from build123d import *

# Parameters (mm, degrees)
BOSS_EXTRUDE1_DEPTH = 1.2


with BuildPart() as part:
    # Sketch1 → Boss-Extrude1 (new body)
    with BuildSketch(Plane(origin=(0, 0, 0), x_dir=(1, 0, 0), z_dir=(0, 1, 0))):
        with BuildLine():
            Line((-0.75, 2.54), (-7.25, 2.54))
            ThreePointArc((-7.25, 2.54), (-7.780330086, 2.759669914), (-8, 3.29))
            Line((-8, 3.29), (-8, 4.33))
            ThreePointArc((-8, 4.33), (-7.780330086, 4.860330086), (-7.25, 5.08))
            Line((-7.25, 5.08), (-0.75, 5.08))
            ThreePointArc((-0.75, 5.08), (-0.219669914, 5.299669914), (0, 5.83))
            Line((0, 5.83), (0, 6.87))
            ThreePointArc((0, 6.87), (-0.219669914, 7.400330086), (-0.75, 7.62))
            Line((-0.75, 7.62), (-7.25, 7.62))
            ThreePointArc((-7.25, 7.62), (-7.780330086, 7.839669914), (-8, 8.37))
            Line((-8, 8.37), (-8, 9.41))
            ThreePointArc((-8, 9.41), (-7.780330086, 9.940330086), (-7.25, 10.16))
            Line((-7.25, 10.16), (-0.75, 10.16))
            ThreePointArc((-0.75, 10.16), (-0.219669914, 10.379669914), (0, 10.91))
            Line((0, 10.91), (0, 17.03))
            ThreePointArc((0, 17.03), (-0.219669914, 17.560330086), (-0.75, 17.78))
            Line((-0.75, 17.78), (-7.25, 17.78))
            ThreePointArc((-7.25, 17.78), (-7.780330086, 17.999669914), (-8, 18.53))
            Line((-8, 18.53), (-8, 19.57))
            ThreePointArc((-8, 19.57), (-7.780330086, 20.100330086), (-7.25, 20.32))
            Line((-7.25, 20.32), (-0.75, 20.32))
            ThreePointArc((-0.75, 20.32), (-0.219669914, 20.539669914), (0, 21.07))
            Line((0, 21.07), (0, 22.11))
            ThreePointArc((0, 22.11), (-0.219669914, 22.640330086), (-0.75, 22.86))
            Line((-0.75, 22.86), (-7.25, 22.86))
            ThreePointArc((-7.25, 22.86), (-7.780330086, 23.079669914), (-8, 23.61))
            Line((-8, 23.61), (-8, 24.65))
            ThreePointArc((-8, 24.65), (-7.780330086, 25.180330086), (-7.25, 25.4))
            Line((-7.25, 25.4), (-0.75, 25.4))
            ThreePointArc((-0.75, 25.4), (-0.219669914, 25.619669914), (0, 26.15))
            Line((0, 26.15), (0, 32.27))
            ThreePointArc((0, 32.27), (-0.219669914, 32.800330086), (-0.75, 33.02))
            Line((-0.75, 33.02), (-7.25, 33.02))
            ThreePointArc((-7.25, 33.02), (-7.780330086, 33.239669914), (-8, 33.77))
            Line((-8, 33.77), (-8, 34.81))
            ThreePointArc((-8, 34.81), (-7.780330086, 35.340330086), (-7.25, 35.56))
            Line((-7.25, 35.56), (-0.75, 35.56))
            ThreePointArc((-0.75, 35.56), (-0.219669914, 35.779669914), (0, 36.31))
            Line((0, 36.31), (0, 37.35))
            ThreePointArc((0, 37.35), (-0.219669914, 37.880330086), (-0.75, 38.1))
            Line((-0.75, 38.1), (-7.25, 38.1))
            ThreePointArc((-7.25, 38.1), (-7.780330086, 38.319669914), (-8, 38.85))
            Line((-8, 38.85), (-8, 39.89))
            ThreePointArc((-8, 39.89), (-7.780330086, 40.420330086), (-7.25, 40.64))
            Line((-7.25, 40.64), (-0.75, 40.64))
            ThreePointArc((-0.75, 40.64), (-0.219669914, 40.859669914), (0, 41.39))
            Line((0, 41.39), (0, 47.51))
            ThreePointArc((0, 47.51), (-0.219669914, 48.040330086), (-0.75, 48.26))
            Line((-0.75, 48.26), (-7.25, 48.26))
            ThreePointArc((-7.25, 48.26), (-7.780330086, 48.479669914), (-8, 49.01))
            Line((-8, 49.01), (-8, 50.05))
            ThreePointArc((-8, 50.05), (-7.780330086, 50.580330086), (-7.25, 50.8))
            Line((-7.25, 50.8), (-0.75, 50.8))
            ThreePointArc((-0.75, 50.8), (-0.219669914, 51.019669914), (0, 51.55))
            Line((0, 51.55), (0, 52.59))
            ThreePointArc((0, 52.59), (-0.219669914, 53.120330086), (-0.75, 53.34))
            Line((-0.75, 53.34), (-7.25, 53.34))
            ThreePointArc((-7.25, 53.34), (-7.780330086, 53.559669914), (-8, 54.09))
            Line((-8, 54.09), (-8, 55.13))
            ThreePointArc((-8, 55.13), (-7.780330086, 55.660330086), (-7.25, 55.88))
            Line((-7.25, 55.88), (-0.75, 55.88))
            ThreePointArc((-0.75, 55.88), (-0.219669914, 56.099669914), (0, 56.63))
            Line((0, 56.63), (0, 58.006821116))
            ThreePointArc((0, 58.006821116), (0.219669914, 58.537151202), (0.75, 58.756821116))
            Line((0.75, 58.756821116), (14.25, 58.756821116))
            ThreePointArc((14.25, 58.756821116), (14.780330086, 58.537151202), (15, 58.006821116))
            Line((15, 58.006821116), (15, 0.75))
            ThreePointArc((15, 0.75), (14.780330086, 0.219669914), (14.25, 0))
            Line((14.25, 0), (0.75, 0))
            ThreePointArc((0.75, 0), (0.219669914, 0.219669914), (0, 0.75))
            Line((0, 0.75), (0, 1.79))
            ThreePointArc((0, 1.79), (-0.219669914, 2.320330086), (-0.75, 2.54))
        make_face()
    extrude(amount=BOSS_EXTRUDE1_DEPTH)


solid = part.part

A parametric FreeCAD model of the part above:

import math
import FreeCAD as App
import Part
import Sketcher
Q = App.Units.Quantity

doc = App.newDocument("Part")
body = doc.addObject("PartDesign::Body", "Body")

sketch1 = body.newObject("Sketcher::SketchObject", "Sketch")
sketch1.AttachmentSupport = (doc.getObject("XZ_Plane"), [""])
sketch1.MapMode = "FlatFace"
sketch1.addGeometry([
    Part.LineSegment(App.Vector(-7.2, -2.5, 0), App.Vector(-0.8, -2.5, 0)),
    Part.ArcOfCircle(Part.Circle(App.Vector(-0.8, -1.8, 0), App.Vector(0, 0, 1), 0.8), math.radians(-90), math.radians(0)),
    Part.LineSegment(App.Vector(0, -1.8, 0), App.Vector(0, -0.8, 0)),
    Part.ArcOfCircle(Part.Circle(App.Vector(0.8, -0.8, 0), App.Vector(0, 0, 1), 0.8), math.radians(90), math.radians(180)),
    Part.LineSegment(App.Vector(0.8, 0, 0), App.Vector(14.2, 0, 0)),
    Part.ArcOfCircle(Part.Circle(App.Vector(14.2, -0.8, 0), App.Vector(0, 0, 1), 0.8), math.radians(0), math.radians(90)),
    Part.LineSegment(App.Vector(15, -0.8, 0), App.Vector(15, -58, 0)),
    Part.ArcOfCircle(Part.Circle(App.Vector(14.2, -58, 0), App.Vector(0, 0, 1), 0.8), math.radians(-90), math.radians(0)),
    Part.LineSegment(App.Vector(14.2, -58.8, 0), App.Vector(0.8, -58.8, 0)),
    Part.ArcOfCircle(Part.Circle(App.Vector(0.8, -58, 0), App.Vector(0, 0, 1), 0.8), math.radians(180), math.radians(270)),
    Part.LineSegment(App.Vector(0, -58, 0), App.Vector(0, -56.6, 0)),
    Part.ArcOfCircle(Part.Circle(App.Vector(-0.8, -56.6, 0), App.Vector(0, 0, 1), 0.8), math.radians(0), math.radians(90)),
    Part.LineSegment(App.Vector(-0.8, -55.9, 0), App.Vector(-7.2, -55.9, 0)),
    Part.ArcOfCircle(Part.Circle(App.Vector(-7.2, -55.1, 0), App.Vector(0, 0, 1), 0.8), math.radians(180), math.radians(270)),
    Part.LineSegment(App.Vector(-8, -55.1, 0), App.Vector(-8, -54.1, 0)),
    Part.ArcOfCircle(Part.Circle(App.Vector(-7.2, -54.1, 0), App.Vector(0, 0, 1), 0.8), math.radians(90), math.radians(180)),
    Part.LineSegment(App.Vector(-7.2, -53.3, 0), App.Vector(-0.8, -53.3, 0)),
    Part.ArcOfCircle(Part.Circle(App.Vector(-0.8, -52.6, 0), App.Vector(0, 0, 1), 0.8), math.radians(-90), math.radians(0)),
    Part.LineSegment(App.Vector(0, -52.6, 0), App.Vector(0, -51.5, 0)),
    Part.ArcOfCircle(Part.Circle(App.Vector(-0.8, -51.5, 0), App.Vector(0, 0, 1), 0.8), math.radians(0), math.radians(90)),
    Part.LineSegment(App.Vector(-0.8, -50.8, 0), App.Vector(-7.2, -50.8, 0)),
    Part.ArcOfCircle(Part.Circle(App.Vector(-7.2, -50, 0), App.Vector(0, 0, 1), 0.8), math.radians(180), math.radians(270)),
    Part.LineSegment(App.Vector(-8, -50, 0), App.Vector(-8, -49, 0)),
    Part.ArcOfCircle(Part.Circle(App.Vector(-7.2, -49, 0), App.Vector(0, 0, 1), 0.8), math.radians(90), math.radians(180)),
    Part.LineSegment(App.Vector(-7.2, -48.3, 0), App.Vector(-0.8, -48.3, 0)),
    Part.ArcOfCircle(Part.Circle(App.Vector(-0.8, -47.5, 0), App.Vector(0, 0, 1), 0.8), math.radians(-90), math.radians(0)),
    Part.LineSegment(App.Vector(0, -47.5, 0), App.Vector(0, -41.4, 0)),
    Part.ArcOfCircle(Part.Circle(App.Vector(-0.8, -41.4, 0), App.Vector(0, 0, 1), 0.8), math.radians(0), math.radians(90)),
    Part.LineSegment(App.Vector(-0.8, -40.6, 0), App.Vector(-7.2, -40.6, 0)),
    Part.ArcOfCircle(Part.Circle(App.Vector(-7.2, -39.9, 0), App.Vector(0, 0, 1), 0.8), math.radians(180), math.radians(270)),
    Part.LineSegment(App.Vector(-8, -39.9, 0), App.Vector(-8, -38.9, 0)),
    Part.ArcOfCircle(Part.Circle(App.Vector(-7.2, -38.9, 0), App.Vector(0, 0, 1), 0.8), math.radians(90), math.radians(180)),
    Part.LineSegment(App.Vector(-7.2, -38.1, 0), App.Vector(-0.8, -38.1, 0)),
    Part.ArcOfCircle(Part.Circle(App.Vector(-0.8, -37.4, 0), App.Vector(0, 0, 1), 0.8), math.radians(-90), math.radians(0)),
    Part.LineSegment(App.Vector(0, -37.4, 0), App.Vector(0, -36.3, 0)),
    Part.ArcOfCircle(Part.Circle(App.Vector(-0.8, -36.3, 0), App.Vector(0, 0, 1), 0.8), math.radians(0), math.radians(90)),
    Part.LineSegment(App.Vector(-0.8, -35.6, 0), App.Vector(-7.2, -35.6, 0)),
    Part.ArcOfCircle(Part.Circle(App.Vector(-7.2, -34.8, 0), App.Vector(0, 0, 1), 0.8), math.radians(180), math.radians(270)),
    Part.LineSegment(App.Vector(-8, -34.8, 0), App.Vector(-8, -33.8, 0)),
    Part.ArcOfCircle(Part.Circle(App.Vector(-7.2, -33.8, 0), App.Vector(0, 0, 1), 0.8), math.radians(90), math.radians(180)),
    Part.LineSegment(App.Vector(-7.2, -33, 0), App.Vector(-0.8, -33, 0)),
    Part.ArcOfCircle(Part.Circle(App.Vector(-0.8, -32.3, 0), App.Vector(0, 0, 1), 0.8), math.radians(-90), math.radians(0)),
    Part.LineSegment(App.Vector(0, -32.3, 0), App.Vector(0, -26.1, 0)),
    Part.ArcOfCircle(Part.Circle(App.Vector(-0.8, -26.1, 0), App.Vector(0, 0, 1), 0.8), math.radians(0), math.radians(90)),
    Part.LineSegment(App.Vector(-0.8, -25.4, 0), App.Vector(-7.2, -25.4, 0)),
    Part.ArcOfCircle(Part.Circle(App.Vector(-7.2, -24.6, 0), App.Vector(0, 0, 1), 0.8), math.radians(180), math.radians(270)),
    Part.LineSegment(App.Vector(-8, -24.6, 0), App.Vector(-8, -23.6, 0)),
    Part.ArcOfCircle(Part.Circle(App.Vector(-7.2, -23.6, 0), App.Vector(0, 0, 1), 0.8), math.radians(90), math.radians(180)),
    Part.LineSegment(App.Vector(-7.2, -22.9, 0), App.Vector(-0.8, -22.9, 0)),
    Part.ArcOfCircle(Part.Circle(App.Vector(-0.8, -22.1, 0), App.Vector(0, 0, 1), 0.8), math.radians(-90), math.radians(0)),
    Part.LineSegment(App.Vector(0, -22.1, 0), App.Vector(0, -21.1, 0)),
    Part.ArcOfCircle(Part.Circle(App.Vector(-0.8, -21.1, 0), App.Vector(0, 0, 1), 0.8), math.radians(0), math.radians(90)),
    Part.LineSegment(App.Vector(-0.8, -20.3, 0), App.Vector(-7.2, -20.3, 0)),
    Part.ArcOfCircle(Part.Circle(App.Vector(-7.2, -19.6, 0), App.Vector(0, 0, 1), 0.8), math.radians(180), math.radians(270)),
    Part.LineSegment(App.Vector(-8, -19.6, 0), App.Vector(-8, -18.5, 0)),
    Part.ArcOfCircle(Part.Circle(App.Vector(-7.2, -18.5, 0), App.Vector(0, 0, 1), 0.8), math.radians(90), math.radians(180)),
    Part.LineSegment(App.Vector(-7.2, -17.8, 0), App.Vector(-0.8, -17.8, 0)),
    Part.ArcOfCircle(Part.Circle(App.Vector(-0.8, -17, 0), App.Vector(0, 0, 1), 0.8), math.radians(-90), math.radians(0)),
    Part.LineSegment(App.Vector(0, -17, 0), App.Vector(0, -10.9, 0)),
    Part.ArcOfCircle(Part.Circle(App.Vector(-0.8, -10.9, 0), App.Vector(0, 0, 1), 0.8), math.radians(0), math.radians(90)),
    Part.LineSegment(App.Vector(-0.8, -10.2, 0), App.Vector(-7.2, -10.2, 0)),
    Part.ArcOfCircle(Part.Circle(App.Vector(-7.2, -9.4, 0), App.Vector(0, 0, 1), 0.8), math.radians(180), math.radians(270)),
    Part.LineSegment(App.Vector(-8, -9.4, 0), App.Vector(-8, -8.4, 0)),
    Part.ArcOfCircle(Part.Circle(App.Vector(-7.2, -8.4, 0), App.Vector(0, 0, 1), 0.8), math.radians(90), math.radians(180)),
    Part.LineSegment(App.Vector(-7.2, -7.6, 0), App.Vector(-0.8, -7.6, 0)),
    Part.ArcOfCircle(Part.Circle(App.Vector(-0.8, -6.9, 0), App.Vector(0, 0, 1), 0.8), math.radians(-90), math.radians(0)),
    Part.LineSegment(App.Vector(0, -6.9, 0), App.Vector(0, -5.8, 0)),
    Part.ArcOfCircle(Part.Circle(App.Vector(-0.8, -5.8, 0), App.Vector(0, 0, 1), 0.8), math.radians(0), math.radians(90)),
    Part.LineSegment(App.Vector(-0.8, -5.1, 0), App.Vector(-7.2, -5.1, 0)),
    Part.ArcOfCircle(Part.Circle(App.Vector(-7.2, -4.3, 0), App.Vector(0, 0, 1), 0.8), math.radians(180), math.radians(270)),
    Part.LineSegment(App.Vector(-8, -4.3, 0), App.Vector(-8, -3.3, 0)),
    Part.ArcOfCircle(Part.Circle(App.Vector(-7.2, -3.3, 0), App.Vector(0, 0, 1), 0.8), math.radians(90), math.radians(180)),
], False)
sketch1.addConstraint([
    Sketcher.Constraint("Tangent", 0, 2, 1, 1),
    Sketcher.Constraint("Tangent", 1, 2, 2, 1),
    Sketcher.Constraint("Tangent", 2, 2, 3, 2),
    Sketcher.Constraint("Tangent", 3, 1, 4, 1),
    Sketcher.Constraint("Tangent", 4, 2, 5, 2),
    Sketcher.Constraint("Tangent", 5, 1, 6, 1),
    Sketcher.Constraint("Tangent", 6, 2, 7, 2),
    Sketcher.Constraint("Tangent", 7, 1, 8, 1),
    Sketcher.Constraint("Tangent", 8, 2, 9, 2),
    Sketcher.Constraint("Tangent", 9, 1, 10, 1),
    Sketcher.Constraint("Tangent", 10, 2, 11, 1),
    Sketcher.Constraint("Tangent", 11, 2, 12, 1),
    Sketcher.Constraint("Tangent", 12, 2, 13, 2),
    Sketcher.Constraint("Tangent", 13, 1, 14, 1),
    Sketcher.Constraint("Tangent", 14, 2, 15, 2),
    Sketcher.Constraint("Tangent", 15, 1, 16, 1),
    Sketcher.Constraint("Tangent", 16, 2, 17, 1),
    Sketcher.Constraint("Tangent", 17, 2, 18, 1),
    Sketcher.Constraint("Tangent", 18, 2, 19, 1),
    Sketcher.Constraint("Tangent", 19, 2, 20, 1),
    Sketcher.Constraint("Tangent", 20, 2, 21, 2),
    Sketcher.Constraint("Tangent", 21, 1, 22, 1),
    Sketcher.Constraint("Tangent", 22, 2, 23, 2),
    Sketcher.Constraint("Tangent", 23, 1, 24, 1),
    Sketcher.Constraint("Tangent", 24, 2, 25, 1),
    Sketcher.Constraint("Tangent", 25, 2, 26, 1),
    Sketcher.Constraint("Tangent", 26, 2, 27, 1),
    Sketcher.Constraint("Tangent", 27, 2, 28, 1),
    Sketcher.Constraint("Tangent", 28, 2, 29, 2),
    Sketcher.Constraint("Tangent", 29, 1, 30, 1),
    Sketcher.Constraint("Tangent", 30, 2, 31, 2),
    Sketcher.Constraint("Tangent", 31, 1, 32, 1),
    Sketcher.Constraint("Tangent", 32, 2, 33, 1),
    Sketcher.Constraint("Tangent", 33, 2, 34, 1),
    Sketcher.Constraint("Tangent", 34, 2, 35, 1),
    Sketcher.Constraint("Tangent", 35, 2, 36, 1),
    Sketcher.Constraint("Tangent", 36, 2, 37, 2),
    Sketcher.Constraint("Tangent", 37, 1, 38, 1),
    Sketcher.Constraint("Tangent", 38, 2, 39, 2),
    Sketcher.Constraint("Tangent", 39, 1, 40, 1),
    Sketcher.Constraint("Tangent", 40, 2, 41, 1),
    Sketcher.Constraint("Tangent", 41, 2, 42, 1),
    Sketcher.Constraint("Tangent", 42, 2, 43, 1),
    Sketcher.Constraint("Tangent", 43, 2, 44, 1),
    Sketcher.Constraint("Tangent", 44, 2, 45, 2),
    Sketcher.Constraint("Tangent", 45, 1, 46, 1),
    Sketcher.Constraint("Tangent", 46, 2, 47, 2),
    Sketcher.Constraint("Tangent", 47, 1, 48, 1),
    Sketcher.Constraint("Tangent", 48, 2, 49, 1),
    Sketcher.Constraint("Tangent", 49, 2, 50, 1),
    Sketcher.Constraint("Tangent", 50, 2, 51, 1),
    Sketcher.Constraint("Tangent", 51, 2, 52, 1),
    Sketcher.Constraint("Tangent", 52, 2, 53, 2),
    Sketcher.Constraint("Tangent", 53, 1, 54, 1),
    Sketcher.Constraint("Tangent", 54, 2, 55, 2),
    Sketcher.Constraint("Tangent", 55, 1, 56, 1),
    Sketcher.Constraint("Tangent", 56, 2, 57, 1),
    Sketcher.Constraint("Tangent", 57, 2, 58, 1),
    Sketcher.Constraint("Tangent", 58, 2, 59, 1),
    Sketcher.Constraint("Tangent", 59, 2, 60, 1),
    Sketcher.Constraint("Tangent", 60, 2, 61, 2),
    Sketcher.Constraint("Tangent", 61, 1, 62, 1),
    Sketcher.Constraint("Tangent", 62, 2, 63, 2),
    Sketcher.Constraint("Tangent", 63, 1, 64, 1),
    Sketcher.Constraint("Tangent", 64, 2, 65, 1),
    Sketcher.Constraint("Tangent", 65, 2, 66, 1),
    Sketcher.Constraint("Tangent", 66, 2, 67, 1),
    Sketcher.Constraint("Tangent", 67, 2, 68, 1),
    Sketcher.Constraint("Tangent", 68, 2, 69, 2),
    Sketcher.Constraint("Tangent", 69, 1, 70, 1),
    Sketcher.Constraint("Tangent", 70, 2, 71, 2),
    Sketcher.Constraint("Tangent", 71, 1, 0, 1),
    Sketcher.Constraint("Horizontal", 0),
    Sketcher.Constraint("Vertical", 2),
    Sketcher.Constraint("Horizontal", 4),
    Sketcher.Constraint("Vertical", 6),
    Sketcher.Constraint("Horizontal", 8),
    Sketcher.Constraint("Vertical", 10),
    Sketcher.Constraint("Horizontal", 12),
    Sketcher.Constraint("Vertical", 14),
    Sketcher.Constraint("Horizontal", 16),
    Sketcher.Constraint("Vertical", 18),
    Sketcher.Constraint("Horizontal", 20),
    Sketcher.Constraint("Vertical", 22),
    Sketcher.Constraint("Horizontal", 24),
    Sketcher.Constraint("Vertical", 26),
    Sketcher.Constraint("Horizontal", 28),
    Sketcher.Constraint("Vertical", 30),
    Sketcher.Constraint("Horizontal", 32),
    Sketcher.Constraint("Vertical", 34),
    Sketcher.Constraint("Horizontal", 36),
    Sketcher.Constraint("Vertical", 38),
    Sketcher.Constraint("Horizontal", 40),
    Sketcher.Constraint("Vertical", 42),
    Sketcher.Constraint("Horizontal", 44),
    Sketcher.Constraint("Vertical", 46),
    Sketcher.Constraint("Horizontal", 48),
    Sketcher.Constraint("Vertical", 50),
    Sketcher.Constraint("Horizontal", 52),
    Sketcher.Constraint("Vertical", 54),
    Sketcher.Constraint("Horizontal", 56),
    Sketcher.Constraint("Vertical", 58),
    Sketcher.Constraint("Horizontal", 60),
    Sketcher.Constraint("Vertical", 62),
    Sketcher.Constraint("Horizontal", 64),
    Sketcher.Constraint("Vertical", 66),
    Sketcher.Constraint("Horizontal", 68),
    Sketcher.Constraint("Vertical", 70),
    Sketcher.Constraint("Equal", 1, 3),
    Sketcher.Constraint("Equal", 3, 5),
    Sketcher.Constraint("Equal", 5, 7),
    Sketcher.Constraint("Equal", 7, 9),
    Sketcher.Constraint("Equal", 9, 11),
    Sketcher.Constraint("Equal", 11, 13),
    Sketcher.Constraint("Equal", 13, 15),
    Sketcher.Constraint("Equal", 15, 17),
    Sketcher.Constraint("Equal", 17, 19),
    Sketcher.Constraint("Equal", 19, 21),
    Sketcher.Constraint("Equal", 21, 23),
    Sketcher.Constraint("Equal", 23, 25),
    Sketcher.Constraint("Equal", 25, 27),
    Sketcher.Constraint("Equal", 27, 29),
    Sketcher.Constraint("Equal", 29, 31),
    Sketcher.Constraint("Equal", 31, 33),
    Sketcher.Constraint("Equal", 33, 35),
    Sketcher.Constraint("Equal", 35, 37),
    Sketcher.Constraint("Equal", 37, 39),
    Sketcher.Constraint("Equal", 39, 41),
    Sketcher.Constraint("Equal", 41, 43),
    Sketcher.Constraint("Equal", 43, 45),
    Sketcher.Constraint("Equal", 45, 47),
    Sketcher.Constraint("Equal", 47, 49),
    Sketcher.Constraint("Equal", 49, 51),
    Sketcher.Constraint("Equal", 51, 53),
    Sketcher.Constraint("Equal", 53, 55),
    Sketcher.Constraint("Equal", 55, 57),
    Sketcher.Constraint("Equal", 57, 59),
    Sketcher.Constraint("Equal", 59, 61),
    Sketcher.Constraint("Equal", 61, 63),
    Sketcher.Constraint("Equal", 63, 65),
    Sketcher.Constraint("Equal", 65, 67),
    Sketcher.Constraint("Equal", 67, 69),
    Sketcher.Constraint("Equal", 69, 71),
    Sketcher.Constraint("PointOnObject", 1, 2, -2),
    Sketcher.Constraint("PointOnObject", 3, 1, -1),
    Sketcher.Constraint("PointOnObject", 9, 1, -2),
    Sketcher.Constraint("PointOnObject", 17, 2, -2),
    Sketcher.Constraint("PointOnObject", 25, 2, -2),
    Sketcher.Constraint("PointOnObject", 33, 2, -2),
    Sketcher.Constraint("PointOnObject", 41, 2, -2),
    Sketcher.Constraint("PointOnObject", 49, 2, -2),
    Sketcher.Constraint("PointOnObject", 57, 2, -2),
    Sketcher.Constraint("PointOnObject", 65, 2, -2),
    Sketcher.Constraint("Vertical", 15, 3, 21, 3),
    Sketcher.Constraint("Vertical", 23, 3, 29, 3),
    Sketcher.Constraint("Vertical", 31, 3, 37, 3),
    Sketcher.Constraint("Vertical", 39, 3, 45, 3),
    Sketcher.Constraint("Vertical", 47, 3, 53, 3),
    Sketcher.Constraint("Vertical", 55, 3, 61, 3),
    Sketcher.Constraint("Vertical", 63, 3, 69, 3),
    Sketcher.Constraint("Equal", 2, 14),
    Sketcher.Constraint("Equal", 14, 18),
    Sketcher.Constraint("Equal", 18, 22),
    Sketcher.Constraint("Equal", 22, 30),
    Sketcher.Constraint("Equal", 30, 34),
    Sketcher.Constraint("Equal", 34, 38),
    Sketcher.Constraint("Equal", 26, 42),
    Sketcher.Constraint("Equal", 38, 46),
    Sketcher.Constraint("Equal", 46, 50),
    Sketcher.Constraint("Equal", 50, 54),
    Sketcher.Constraint("Equal", 42, 58),
    Sketcher.Constraint("Equal", 54, 62),
    Sketcher.Constraint("Equal", 62, 66),
    Sketcher.Constraint("Equal", 66, 70),
    Sketcher.Constraint("Radius", 1, Q("0.75 mm")),
    Sketcher.Constraint("DistanceX", 0, 1, 0, 2, Q("6.5 mm")),
    Sketcher.Constraint("DistanceX", 4, 1, 4, 2, Q("13.5 mm")),
    Sketcher.Constraint("DistanceY", 2, 1, 2, 2, Q("1.04 mm")),
    Sketcher.Constraint("DistanceY", 26, 1, 26, 2, Q("6.12 mm")),
    Sketcher.Constraint("DistanceY", 6, 2, 6, 1, Q("57.256821 mm")),
])
pad1 = body.newObject("PartDesign::Pad", "Pad")
pad1.Profile = sketch1
pad1.Length = 1.2
pad1.Reversed = True

doc.recompute()
